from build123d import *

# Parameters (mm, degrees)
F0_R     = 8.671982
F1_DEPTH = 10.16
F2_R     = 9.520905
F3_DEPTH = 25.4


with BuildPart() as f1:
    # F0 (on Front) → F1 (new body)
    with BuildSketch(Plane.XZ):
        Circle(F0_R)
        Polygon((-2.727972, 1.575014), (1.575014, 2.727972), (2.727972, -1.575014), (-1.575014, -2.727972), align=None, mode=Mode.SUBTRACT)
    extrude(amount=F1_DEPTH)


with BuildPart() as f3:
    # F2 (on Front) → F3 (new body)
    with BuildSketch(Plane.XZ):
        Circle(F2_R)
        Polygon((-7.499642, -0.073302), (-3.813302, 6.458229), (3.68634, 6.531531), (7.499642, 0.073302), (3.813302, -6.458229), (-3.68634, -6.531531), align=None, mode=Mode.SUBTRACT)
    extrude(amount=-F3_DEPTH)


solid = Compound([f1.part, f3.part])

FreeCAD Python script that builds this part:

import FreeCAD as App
import Part
import Sketcher

V = App.Vector
Q = App.Units.Quantity


def add_polygon(sketch, points):
    """Adds a closed chain of lines whose ends are joined by coincident constraints."""
    first, n = sketch.GeometryCount, len(points)
    for a, b in zip(points, points[1:] + points[:1]):
        sketch.addGeometry(Part.LineSegment(App.Vector(*a, 0), App.Vector(*b, 0)), False)
    for i in range(n):
        sketch.addConstraint(Sketcher.Constraint("Coincident", first + i, 2, first + (i + 1) % n, 1))

doc = App.newDocument("Part")
params = doc.addObject("Spreadsheet::Sheet", "Params")
for row, (alias, value) in enumerate([
    ("pad1_length", "0.4 in"),
    ("pad2_length", "1 in"),
], start=1):
    params.set(f"A{row}", alias)
    params.set(f"B{row}", "=" + value)
    params.setAlias(f"B{row}", alias)

body = doc.addObject("PartDesign::Body", "Body")

# Sketch on XZ plane
sketch1 = doc.addObject("Sketcher::SketchObject", "Sketch")
body.addObject(sketch1)
sketch1.AttachmentSupport = (doc.XZ_Plane, [""])
sketch1.MapMode = "FlatFace"
sketch1.addGeometry(Part.Circle(V(0, 0, 0), V(0, 0, 1), 8.671982), False)  # 0
add_polygon(sketch1, [(-1.575014, -2.727972), (-2.727972, 1.575014), (1.575014, 2.727972), (2.727972, -1.575014)])  # lines 1-4
sketch1.addConstraint(Sketcher.Constraint("Coincident", 0, 3, -1, 1))
sketch1.addConstraint(Sketcher.Constraint("Symmetric", 1, 2, 3, 2, -1, 1))
sketch1.addConstraint(Sketcher.Constraint("Symmetric", 2, 2, 4, 2, -1, 1))
sketch1.addConstraint(Sketcher.Constraint("Perpendicular", 1, 2))
sketch1.addConstraint(Sketcher.Constraint("Equal", 1, 2))
sketch1.addConstraint(Sketcher.Constraint("Diameter", 0, 17.343964))
sketch1.addConstraint(Sketcher.Constraint("DistanceX", 1, 2, -1, 1, 2.727972))
sketch1.addConstraint(Sketcher.Constraint("Distance", 1, 4.454773))
pad1 = doc.addObject("PartDesign::Pad", "Pad")
body.addObject(pad1)
pad1.Profile = sketch1
pad1.setExpression("Length", "Params.pad1_length")
body2 = doc.addObject("PartDesign::Body", "Body001")

# Sketch on XZ plane
sketch2 = doc.addObject("Sketcher::SketchObject", "Sketch001")
body2.addObject(sketch2)
sketch2.AttachmentSupport = (doc.getObject("XZ_Plane001"), [""])
sketch2.MapMode = "FlatFace"
sketch2.addGeometry(Part.Circle(V(0, 0, 0), V(0, 0, 1), 9.520905), False)  # 0
add_polygon(sketch2, [(-3.68634, -6.531531), (-7.499642, -0.073302), (-3.813302, 6.458229), (3.68634, 6.531531), (7.499642, 0.073302), (3.813302, -6.458229)])  # lines 1-6
sketch2.addConstraint(Sketcher.Constraint("Coincident", 0, 3, -1, 1))
sketch2.addConstraint(Sketcher.Constraint("Symmetric", 1, 2, 4, 2, -1, 1))
sketch2.addConstraint(Sketcher.Constraint("Symmetric", 2, 2, 5, 2, -1, 1))
sketch2.addConstraint(Sketcher.Constraint("Symmetric", 3, 2, 6, 2, -1, 1))
sketch2.addConstraint(Sketcher.Constraint("Equal", 1, 2))
sketch2.addConstraint(Sketcher.Constraint("Equal", 2, 3))
sketch2.addConstraint(Sketcher.Constraint("Angle", 1, Q("120.559994 deg")))
sketch2.addConstraint(Sketcher.Constraint("Angle", 2, Q("60.55999 deg")))
sketch2.addConstraint(Sketcher.Constraint("Angle", 3, Q("0.559995 deg")))
sketch2.addConstraint(Sketcher.Constraint("Diameter", 0, 19.04181))
sketch2.addConstraint(Sketcher.Constraint("Distance", 1, 7.5))
pad2 = doc.addObject("PartDesign::Pad", "Pad001")
body2.addObject(pad2)
pad2.Profile = sketch2
pad2.setExpression("Length", "Params.pad2_length")
pad2.Reversed = True

doc.recompute()
